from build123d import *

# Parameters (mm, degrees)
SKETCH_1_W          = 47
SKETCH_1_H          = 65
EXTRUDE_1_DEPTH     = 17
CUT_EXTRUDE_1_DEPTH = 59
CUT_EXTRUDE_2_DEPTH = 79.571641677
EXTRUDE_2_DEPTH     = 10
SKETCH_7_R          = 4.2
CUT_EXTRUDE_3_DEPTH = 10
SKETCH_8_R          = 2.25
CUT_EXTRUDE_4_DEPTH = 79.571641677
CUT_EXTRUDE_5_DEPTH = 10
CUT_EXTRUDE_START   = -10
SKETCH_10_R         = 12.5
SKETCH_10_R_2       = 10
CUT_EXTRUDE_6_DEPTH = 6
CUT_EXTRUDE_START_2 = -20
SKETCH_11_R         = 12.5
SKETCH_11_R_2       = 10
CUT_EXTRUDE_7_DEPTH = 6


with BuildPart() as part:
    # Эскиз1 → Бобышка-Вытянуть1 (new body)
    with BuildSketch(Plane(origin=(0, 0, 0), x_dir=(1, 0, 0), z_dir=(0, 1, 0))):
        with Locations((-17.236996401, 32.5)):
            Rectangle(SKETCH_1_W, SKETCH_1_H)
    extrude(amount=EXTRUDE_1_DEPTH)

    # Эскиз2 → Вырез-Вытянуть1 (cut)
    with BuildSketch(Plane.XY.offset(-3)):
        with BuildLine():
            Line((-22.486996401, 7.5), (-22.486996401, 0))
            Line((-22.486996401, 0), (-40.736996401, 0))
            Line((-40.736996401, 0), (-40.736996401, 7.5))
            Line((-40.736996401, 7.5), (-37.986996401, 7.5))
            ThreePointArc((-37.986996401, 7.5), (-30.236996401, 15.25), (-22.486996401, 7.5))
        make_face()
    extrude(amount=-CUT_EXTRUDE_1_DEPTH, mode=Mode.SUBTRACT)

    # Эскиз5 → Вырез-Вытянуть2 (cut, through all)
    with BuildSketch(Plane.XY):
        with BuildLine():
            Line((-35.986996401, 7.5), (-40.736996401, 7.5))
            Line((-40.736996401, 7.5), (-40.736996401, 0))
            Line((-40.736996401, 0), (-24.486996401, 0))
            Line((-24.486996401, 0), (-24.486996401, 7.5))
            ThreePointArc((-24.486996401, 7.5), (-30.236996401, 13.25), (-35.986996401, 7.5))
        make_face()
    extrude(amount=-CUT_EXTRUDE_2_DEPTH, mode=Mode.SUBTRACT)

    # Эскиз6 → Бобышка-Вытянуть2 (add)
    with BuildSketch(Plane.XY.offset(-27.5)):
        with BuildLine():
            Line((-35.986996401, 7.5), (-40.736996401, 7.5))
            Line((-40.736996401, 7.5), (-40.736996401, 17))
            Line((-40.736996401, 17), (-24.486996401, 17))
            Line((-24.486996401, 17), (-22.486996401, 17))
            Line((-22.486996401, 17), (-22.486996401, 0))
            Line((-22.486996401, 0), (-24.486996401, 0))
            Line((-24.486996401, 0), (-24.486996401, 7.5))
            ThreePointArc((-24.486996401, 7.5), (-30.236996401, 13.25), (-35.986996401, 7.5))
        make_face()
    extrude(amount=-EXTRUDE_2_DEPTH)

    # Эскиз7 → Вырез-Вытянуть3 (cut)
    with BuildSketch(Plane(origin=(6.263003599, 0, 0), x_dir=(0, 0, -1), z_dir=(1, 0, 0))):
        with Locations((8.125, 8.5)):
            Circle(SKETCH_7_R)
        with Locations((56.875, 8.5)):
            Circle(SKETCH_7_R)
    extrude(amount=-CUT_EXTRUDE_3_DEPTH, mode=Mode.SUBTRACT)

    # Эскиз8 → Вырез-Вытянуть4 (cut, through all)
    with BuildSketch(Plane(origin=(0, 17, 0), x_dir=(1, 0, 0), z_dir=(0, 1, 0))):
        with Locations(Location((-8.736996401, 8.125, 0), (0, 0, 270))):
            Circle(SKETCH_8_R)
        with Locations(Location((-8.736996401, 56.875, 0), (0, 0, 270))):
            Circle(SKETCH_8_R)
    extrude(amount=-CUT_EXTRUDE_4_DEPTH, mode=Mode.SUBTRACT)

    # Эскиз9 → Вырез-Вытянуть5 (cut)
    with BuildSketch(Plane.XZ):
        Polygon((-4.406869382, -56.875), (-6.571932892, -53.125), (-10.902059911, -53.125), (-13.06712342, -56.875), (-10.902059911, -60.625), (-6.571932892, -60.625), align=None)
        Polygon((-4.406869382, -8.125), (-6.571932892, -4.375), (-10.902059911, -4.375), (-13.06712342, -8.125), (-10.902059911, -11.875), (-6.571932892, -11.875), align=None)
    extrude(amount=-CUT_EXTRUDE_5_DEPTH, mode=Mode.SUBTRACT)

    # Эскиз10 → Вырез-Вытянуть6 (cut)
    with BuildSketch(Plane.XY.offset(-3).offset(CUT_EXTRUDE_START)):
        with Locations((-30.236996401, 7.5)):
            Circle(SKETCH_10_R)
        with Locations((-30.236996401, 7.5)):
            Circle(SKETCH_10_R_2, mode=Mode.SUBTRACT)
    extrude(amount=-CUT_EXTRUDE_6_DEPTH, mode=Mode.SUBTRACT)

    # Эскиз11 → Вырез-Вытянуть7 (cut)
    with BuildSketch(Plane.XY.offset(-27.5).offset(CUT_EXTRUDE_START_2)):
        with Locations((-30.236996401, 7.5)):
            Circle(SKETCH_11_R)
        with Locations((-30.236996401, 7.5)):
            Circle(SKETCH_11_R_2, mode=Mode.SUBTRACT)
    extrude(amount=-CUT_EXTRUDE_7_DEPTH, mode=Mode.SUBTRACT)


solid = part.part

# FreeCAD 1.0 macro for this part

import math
import FreeCAD as App
import Part
import Sketcher

V = App.Vector
Q = App.Units.Quantity

doc = App.newDocument("Part")
body = doc.addObject("PartDesign::Body", "Body")

sketch1 = doc.addObject("Sketcher::SketchObject", "Sketch")
body.addObject(sketch1)
sketch1.AttachmentSupport = (doc.XZ_Plane, [""])
sketch1.MapMode = "FlatFace"
sketch1.addGeometry([
    Part.LineSegment(V(-41, -65, 0), V(-41, 0, 0)),
    Part.LineSegment(V(-41, 0, 0), V(6, 0, 0)),
    Part.LineSegment(V(6, 0, 0), V(6, -65, 0)),
    Part.LineSegment(V(6, -65, 0), V(-41, -65, 0)),
], False)
sketch1.addConstraint([
    Sketcher.Constraint("Coincident", 0, 2, 1, 1),
    Sketcher.Constraint("Coincident", 1, 2, 2, 1),
    Sketcher.Constraint("Coincident", 2, 2, 3, 1),
    Sketcher.Constraint("Coincident", 3, 2, 0, 1),
    Sketcher.Constraint("Vertical", 0),
    Sketcher.Constraint("Horizontal", 1),
    Sketcher.Constraint("Vertical", 2),
    Sketcher.Constraint("Horizontal", 3),
    Sketcher.Constraint("PointOnObject", 0, 2, -1),
    Sketcher.Constraint("DistanceX", 1, 1, 1, 2, 47.0),
    Sketcher.Constraint("DistanceY", 0, 1, 0, 2, 65.0),
    Sketcher.Constraint("DistanceX", 0, 2, -1, 1, 40.736996),
])
pad1 = doc.addObject("PartDesign::Pad", "Pad")
body.addObject(pad1)
pad1.Profile = sketch1
pad1.Length = 17
pad1.Reversed = True

sketch2 = doc.addObject("Sketcher::SketchObject", "Sketch001")
body.addObject(sketch2)
sketch2.AttachmentSupport = (doc.XY_Plane, [""])
sketch2.MapMode = "FlatFace"
sketch2.AttachmentOffset = App.Placement(V(0, 0, -3), App.Rotation())
sketch2.addGeometry([
    Part.LineSegment(V(-22.5, 0, 0), V(-22.5, 7.5, 0)),
    Part.ArcOfCircle(Part.Circle(V(-30.2, 7.5, 0), V(0, 0, 1), 7.8), math.radians(0), math.radians(180)),
    Part.LineSegment(V(-38, 7.5, 0), V(-40.7, 7.5, 0)),
    Part.LineSegment(V(-40.7, 7.5, 0), V(-40.7, 0, 0)),
    Part.LineSegment(V(-40.7, 0, 0), V(-22.5, 0, 0)),
], False)
sketch2.addConstraint([
    Sketcher.Constraint("Tangent", 0, 2, 1, 1),
    Sketcher.Constraint("Coincident", 1, 2, 2, 1),
    Sketcher.Constraint("Coincident", 2, 2, 3, 1),
    Sketcher.Constraint("Coincident", 3, 2, 4, 1),
    Sketcher.Constraint("Coincident", 4, 2, 0, 1),
    Sketcher.Constraint("Vertical", 0),
    Sketcher.Constraint("Horizontal", 2),
    Sketcher.Constraint("Vertical", 3),
    Sketcher.Constraint("Horizontal", 4),
    Sketcher.Constraint("PointOnObject", 3, 2, -1),
    Sketcher.Constraint("Horizontal", 0, 2, 1, 2),
    Sketcher.Constraint("Radius", 1, 7.75),
    Sketcher.Constraint("DistanceY", 0, 1, 0, 2, 7.5),
    Sketcher.Constraint("DistanceX", 2, 2, 2, 1, 2.75),
    Sketcher.Constraint("DistanceX", 1, 3, -1, 1, 30.236996),
])
pocket1 = doc.addObject("PartDesign::Pocket", "Pocket")
body.addObject(pocket1)
pocket1.Profile = sketch2
pocket1.Length = 59

sketch3 = doc.addObject("Sketcher::SketchObject", "Sketch002")
body.addObject(sketch3)
sketch3.AttachmentSupport = (doc.XY_Plane, [""])
sketch3.MapMode = "FlatFace"
sketch3.addGeometry([
    Part.LineSegment(V(-36, 7.5, 0), V(-40.7, 7.5, 0)),
    Part.LineSegment(V(-40.7, 7.5, 0), V(-40.7, 0, 0)),
    Part.LineSegment(V(-40.7, 0, 0), V(-24.5, 0, 0)),
    Part.LineSegment(V(-24.5, 0, 0), V(-24.5, 7.5, 0)),
    Part.ArcOfCircle(Part.Circle(V(-30.2, 7.5, 0), V(0, 0, 1), 5.8), math.radians(0), math.radians(180)),
], False)
sketch3.addConstraint([
    Sketcher.Constraint("Coincident", 0, 2, 1, 1),
    Sketcher.Constraint("Coincident", 1, 2, 2, 1),
    Sketcher.Constraint("Coincident", 2, 2, 3, 1),
    Sketcher.Constraint("Tangent", 3, 2, 4, 1),
    Sketcher.Constraint("Coincident", 4, 2, 0, 1),
    Sketcher.Constraint("Horizontal", 0),
    Sketcher.Constraint("Vertical", 1),
    Sketcher.Constraint("Horizontal", 2),
    Sketcher.Constraint("Vertical", 3),
    Sketcher.Constraint("PointOnObject", 1, 2, -1),
    Sketcher.Constraint("Horizontal", 4, 3, 0, 2),
    Sketcher.Constraint("Radius", 4, 5.75),
    Sketcher.Constraint("DistanceY", 1, 2, 1, 1, 7.5),
    Sketcher.Constraint("DistanceX", 0, 2, 0, 1, 4.75),
    Sketcher.Constraint("DistanceX", 4, 3, -1, 1, 30.236996),
])
pocket2 = doc.addObject("PartDesign::Pocket", "Pocket001")
body.addObject(pocket2)
pocket2.Profile = sketch3
pocket2.Type = "ThroughAll"

sketch4 = doc.addObject("Sketcher::SketchObject", "Sketch003")
body.addObject(sketch4)
sketch4.AttachmentSupport = (doc.XY_Plane, [""])
sketch4.MapMode = "FlatFace"
sketch4.AttachmentOffset = App.Placement(V(0, 0, -27.5), App.Rotation())
sketch4.addGeometry([
    Part.LineSegment(V(-40.7, 7.5, 0), V(-36, 7.5, 0)),
    Part.ArcOfCircle(Part.Circle(V(-30.2, 7.5, 0), V(0, 0, 1), 5.8), math.radians(0), math.radians(180)),
    Part.LineSegment(V(-24.5, 7.5, 0), V(-24.5, 0, 0)),
    Part.LineSegment(V(-24.5, 0, 0), V(-22.5, 0, 0)),
    Part.LineSegment(V(-22.5, 0, 0), V(-22.5, 17, 0)),
    Part.LineSegment(V(-22.5, 17, 0), V(-40.7, 17, 0)),
    Part.LineSegment(V(-40.7, 17, 0), V(-40.7, 7.5, 0)),
], False)
sketch4.addConstraint([
    Sketcher.Constraint("Coincident", 0, 2, 1, 2),
    Sketcher.Constraint("Tangent", 1, 1, 2, 1),
    Sketcher.Constraint("Coincident", 2, 2, 3, 1),
    Sketcher.Constraint("Coincident", 3, 2, 4, 1),
    Sketcher.Constraint("Coincident", 4, 2, 5, 1),
    Sketcher.Constraint("Coincident", 5, 2, 6, 1),
    Sketcher.Constraint("Coincident", 6, 2, 0, 1),
    Sketcher.Constraint("Horizontal", 0),
    Sketcher.Constraint("Vertical", 2),
    Sketcher.Constraint("Horizontal", 3),
    Sketcher.Constraint("Vertical", 4),
    Sketcher.Constraint("Horizontal", 5),
    Sketcher.Constraint("Vertical", 6),
    Sketcher.Constraint("PointOnObject", 2, 2, -1),
    Sketcher.Constraint("Horizontal", 1, 3, 0, 2),
    Sketcher.Constraint("DistanceX", 3, 1, 3, 2, 2.0),
    Sketcher.Constraint("DistanceY", 4, 1, 4, 2, 17.0),
    Sketcher.Constraint("Radius", 1, 5.75),
    Sketcher.Constraint("DistanceY", 2, 2, 2, 1, 7.5),
    Sketcher.Constraint("DistanceX", 0, 1, 0, 2, 4.75),
    Sketcher.Constraint("DistanceX", 1, 3, -1, 1, 30.236996),
])
pad2 = doc.addObject("PartDesign::Pad", "Pad001")
body.addObject(pad2)
pad2.Profile = sketch4
pad2.Length = 10
pad2.Reversed = True

sketch5 = doc.addObject("Sketcher::SketchObject", "Sketch004")
body.addObject(sketch5)
sketch5.AttachmentSupport = (doc.YZ_Plane, [""])
sketch5.MapMode = "FlatFace"
sketch5.AttachmentOffset = App.Placement(V(0, 0, 6.263004), App.Rotation())
sketch5.addGeometry([
    Part.Circle(V(8.5, -8.1, 0), V(0, 0, 1), 4.2),
    Part.Circle(V(8.5, -56.9, 0), V(0, 0, 1), 4.2),
], False)
sketch5.addConstraint([
    Sketcher.Constraint("Equal", 0, 1),
    Sketcher.Constraint("Vertical", 0, 3, 1, 3),
    Sketcher.Constraint("Diameter", 0, 8.4),
    Sketcher.Constraint("DistanceX", -1, 1, 0, 3, 8.5),
    Sketcher.Constraint("DistanceY", 1, 3, 0, 3, 48.75),
    Sketcher.Constraint("DistanceY", 0, 3, -1, 1, 8.125),
])
pocket3 = doc.addObject("PartDesign::Pocket", "Pocket002")
body.addObject(pocket3)
pocket3.Profile = sketch5
pocket3.Length = 10

sketch6 = doc.addObject("Sketcher::SketchObject", "Sketch005")
body.addObject(sketch6)
sketch6.AttachmentSupport = (doc.XZ_Plane, [""])
sketch6.MapMode = "FlatFace"
sketch6.AttachmentOffset = App.Placement(V(0, 0, -17), App.Rotation())
sketch6.addGeometry([
    Part.Circle(V(-8.7, -8.1, 0), V(0, 0, 1), 2.2),
    Part.Circle(V(-8.7, -56.9, 0), V(0, 0, 1), 2.2),
], False)
sketch6.addConstraint([
    Sketcher.Constraint("Equal", 0, 1),
    Sketcher.Constraint("Vertical", 0, 3, 1, 3),
    Sketcher.Constraint("Diameter", 0, 4.5),
    Sketcher.Constraint("DistanceY", 1, 3, 0, 3, 48.75),
    Sketcher.Constraint("DistanceY", 0, 3, -1, 1, 8.125),
    Sketcher.Constraint("DistanceX", 0, 3, -1, 1, 8.736996),
])
pocket4 = doc.addObject("PartDesign::Pocket", "Pocket003")
body.addObject(pocket4)
pocket4.Profile = sketch6
pocket4.Type = "ThroughAll"
pocket4.Reversed = True

sketch7 = doc.addObject("Sketcher::SketchObject", "Sketch006")
body.addObject(sketch7)
sketch7.AttachmentSupport = (doc.XZ_Plane, [""])
sketch7.MapMode = "FlatFace"
sketch7.addGeometry([
    Part.LineSegment(V(-4.4, -56.9, 0), V(-6.6, -53.1, 0)),
    Part.LineSegment(V(-6.6, -53.1, 0), V(-10.9, -53.1, 0)),
    Part.LineSegment(V(-10.9, -53.1, 0), V(-13.1, -56.9, 0)),
    Part.LineSegment(V(-13.1, -56.9, 0), V(-10.9, -60.6, 0)),
    Part.LineSegment(V(-10.9, -60.6, 0), V(-6.6, -60.6, 0)),
    Part.LineSegment(V(-6.6, -60.6, 0), V(-4.4, -56.9, 0)),
    Part.LineSegment(V(-4.4, -8.1, 0), V(-6.6, -4.4, 0)),
    Part.LineSegment(V(-6.6, -4.4, 0), V(-10.9, -4.4, 0)),
    Part.LineSegment(V(-10.9, -4.4, 0), V(-13.1, -8.1, 0)),
    Part.LineSegment(V(-13.1, -8.1, 0), V(-10.9, -11.9, 0)),
    Part.LineSegment(V(-10.9, -11.9, 0), V(-6.6, -11.9, 0)),
    Part.LineSegment(V(-6.6, -11.9, 0), V(-4.4, -8.1, 0)),
], False)
sketch7.addConstraint([
    Sketcher.Constraint("Coincident", 0, 2, 1, 1),
    Sketcher.Constraint("Coincident", 1, 2, 2, 1),
    Sketcher.Constraint("Coincident", 2, 2, 3, 1),
    Sketcher.Constraint("Coincident", 3, 2, 4, 1),
    Sketcher.Constraint("Coincident", 4, 2, 5, 1),
    Sketcher.Constraint("Coincident", 5, 2, 0, 1),
    Sketcher.Constraint("Coincident", 6, 2, 7, 1),
    Sketcher.Constraint("Coincident", 7, 2, 8, 1),
    Sketcher.Constraint("Coincident", 8, 2, 9, 1),
    Sketcher.Constraint("Coincident", 9, 2, 10, 1),
    Sketcher.Constraint("Coincident", 10, 2, 11, 1),
    Sketcher.Constraint("Coincident", 11, 2, 6, 1),
    Sketcher.Constraint("Horizontal", 1),
    Sketcher.Constraint("Horizontal", 4),
    Sketcher.Constraint("Horizontal", 7),
    Sketcher.Constraint("Horizontal", 10),
    Sketcher.Constraint("Parallel", 0, 3),
    Sketcher.Constraint("Parallel", 2, 5),
    Sketcher.Constraint("Parallel", 3, 6),
    Sketcher.Constraint("Parallel", 5, 8),
    Sketcher.Constraint("Parallel", 6, 9),
    Sketcher.Constraint("Parallel", 8, 11),
    Sketcher.Constraint("Horizontal", 2, 2, 5, 2),
    Sketcher.Constraint("Horizontal", 8, 2, 11, 2),
    Sketcher.Constraint("Vertical", 1, 2, 3, 2),
    Sketcher.Constraint("Vertical", 0, 2, 4, 2),
    Sketcher.Constraint("Vertical", 4, 2, 6, 2),
    Sketcher.Constraint("Vertical", 3, 2, 7, 2),
    Sketcher.Constraint("Vertical", 2, 2, 8, 2),
    Sketcher.Constraint("Vertical", 7, 2, 9, 2),
    Sketcher.Constraint("Angle", 0, Q("120 deg")),
    Sketcher.Constraint("DistanceY", 1, 2, 8, 2, 45.0),
    Sketcher.Constraint("DistanceY", 3, 2, 1, 2, 7.5),
    Sketcher.Constraint("DistanceY", 0, 2, -1, 1, 53.125),
    Sketcher.Constraint("DistanceX", 1, 2, 1, 1, 4.330127),
    Sketcher.Constraint("DistanceX", 1, 2, -1, 1, 10.90206),
])
pocket5 = doc.addObject("PartDesign::Pocket", "Pocket004")
body.addObject(pocket5)
pocket5.Profile = sketch7
pocket5.Length = 10

sketch8 = doc.addObject("Sketcher::SketchObject", "Sketch007")
body.addObject(sketch8)
sketch8.AttachmentSupport = (doc.XY_Plane, [""])
sketch8.MapMode = "FlatFace"
sketch8.AttachmentOffset = App.Placement(V(0, 0, -13), App.Rotation())
sketch8.addGeometry([
    Part.Circle(V(-30, 8, 0), V(0, 0, 1), 12),
    Part.Circle(V(-30, 8, 0), V(0, 0, 1), 10),
], False)
sketch8.addConstraint([
    Sketcher.Constraint("Coincident", 1, 3, 0, 3),
    Sketcher.Constraint("Diameter", 0, 25.0),
    Sketcher.Constraint("Diameter", 1, 20.0),
    Sketcher.Constraint("DistanceY", -1, 1, 0, 3, 7.5),
    Sketcher.Constraint("DistanceX", 0, 3, -1, 1, 30.236996),
])
pocket6 = doc.addObject("PartDesign::Pocket", "Pocket005")
body.addObject(pocket6)
pocket6.Profile = sketch8
pocket6.Length = 6

sketch9 = doc.addObject("Sketcher::SketchObject", "Sketch008")
body.addObject(sketch9)
sketch9.AttachmentSupport = (doc.XY_Plane, [""])
sketch9.MapMode = "FlatFace"
sketch9.AttachmentOffset = App.Placement(V(0, 0, -47.5), App.Rotation())
sketch9.addGeometry([
    Part.Circle(V(-30, 8, 0), V(0, 0, 1), 12),
    Part.Circle(V(-30, 8, 0), V(0, 0, 1), 10),
], False)
sketch9.addConstraint([
    Sketcher.Constraint("Coincident", 1, 3, 0, 3),
    Sketcher.Constraint("Diameter", 0, 25.0),
    Sketcher.Constraint("Diameter", 1, 20.0),
    Sketcher.Constraint("DistanceY", -1, 1, 0, 3, 7.5),
    Sketcher.Constraint("DistanceX", 0, 3, -1, 1, 30.236996),
])
pocket7 = doc.addObject("PartDesign::Pocket", "Pocket006")
body.addObject(pocket7)
pocket7.Profile = sketch9
pocket7.Length = 6

doc.recompute()
